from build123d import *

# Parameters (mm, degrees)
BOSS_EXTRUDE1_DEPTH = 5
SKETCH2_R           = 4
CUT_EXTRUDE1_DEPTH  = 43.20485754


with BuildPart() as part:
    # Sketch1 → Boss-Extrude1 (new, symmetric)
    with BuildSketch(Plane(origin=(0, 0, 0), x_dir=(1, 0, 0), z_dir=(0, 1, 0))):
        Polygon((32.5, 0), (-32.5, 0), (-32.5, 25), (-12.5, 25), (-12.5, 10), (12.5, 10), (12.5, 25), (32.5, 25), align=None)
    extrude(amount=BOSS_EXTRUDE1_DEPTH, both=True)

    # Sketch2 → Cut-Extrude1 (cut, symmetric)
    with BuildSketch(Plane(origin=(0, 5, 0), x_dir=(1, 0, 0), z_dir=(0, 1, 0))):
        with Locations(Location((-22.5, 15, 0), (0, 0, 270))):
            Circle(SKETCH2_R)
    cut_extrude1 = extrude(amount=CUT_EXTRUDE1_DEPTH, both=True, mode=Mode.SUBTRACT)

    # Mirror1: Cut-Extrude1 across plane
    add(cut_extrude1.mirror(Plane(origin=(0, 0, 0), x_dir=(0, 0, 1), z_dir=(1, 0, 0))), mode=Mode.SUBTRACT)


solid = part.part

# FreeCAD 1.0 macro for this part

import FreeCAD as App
import Part
import Sketcher
from FreeCAD import Vector

doc = App.newDocument("Part")
body = doc.addObject("PartDesign::Body", "Body")

sketch1 = body.newObject("Sketcher::SketchObject", "Sketch")
sketch1.AttachmentSupport = (doc.getObject("XZ_Plane"), [""])
sketch1.MapMode = "FlatFace"
sketch1.addGeometry(Part.LineSegment(Vector(-32, 0, 0), Vector(32, 0, 0)), False)
sketch1.addGeometry(Part.LineSegment(Vector(32, 0, 0), Vector(32, -25, 0)), False)
sketch1.addGeometry(Part.LineSegment(Vector(32, -25, 0), Vector(12, -25, 0)), False)
sketch1.addGeometry(Part.LineSegment(Vector(12, -25, 0), Vector(12, -10, 0)), False)
sketch1.addGeometry(Part.LineSegment(Vector(12, -10, 0), Vector(-12, -10, 0)), False)
sketch1.addGeometry(Part.LineSegment(Vector(-12, -10, 0), Vector(-12, -25, 0)), False)
sketch1.addGeometry(Part.LineSegment(Vector(-12, -25, 0), Vector(-32, -25, 0)), False)
sketch1.addGeometry(Part.LineSegment(Vector(-32, -25, 0), Vector(-32, 0, 0)), False)
sketch1.addConstraint(Sketcher.Constraint("Coincident", 0, 2, 1, 1))
sketch1.addConstraint(Sketcher.Constraint("Coincident", 1, 2, 2, 1))
sketch1.addConstraint(Sketcher.Constraint("Coincident", 2, 2, 3, 1))
sketch1.addConstraint(Sketcher.Constraint("Coincident", 3, 2, 4, 1))
sketch1.addConstraint(Sketcher.Constraint("Coincident", 4, 2, 5, 1))
sketch1.addConstraint(Sketcher.Constraint("Coincident", 5, 2, 6, 1))
sketch1.addConstraint(Sketcher.Constraint("Coincident", 6, 2, 7, 1))
sketch1.addConstraint(Sketcher.Constraint("Coincident", 7, 2, 0, 1))
sketch1.addConstraint(Sketcher.Constraint("Horizontal", 0))
sketch1.addConstraint(Sketcher.Constraint("Vertical", 1))
sketch1.addConstraint(Sketcher.Constraint("Horizontal", 2))
sketch1.addConstraint(Sketcher.Constraint("Vertical", 3))
sketch1.addConstraint(Sketcher.Constraint("Horizontal", 4))
sketch1.addConstraint(Sketcher.Constraint("Vertical", 5))
sketch1.addConstraint(Sketcher.Constraint("Horizontal", 6))
sketch1.addConstraint(Sketcher.Constraint("Vertical", 7))
sketch1.addConstraint(Sketcher.Constraint("Symmetric", 0, 2, 7, 2, -1, 1))
sketch1.addConstraint(Sketcher.Constraint("Symmetric", 2, 2, 5, 2, -2))
sketch1.addConstraint(Sketcher.Constraint("Equal", 4, 1))
sketch1.addConstraint(Sketcher.Constraint("DistanceX", 0, 1, 0, 2, 65.0))
sketch1.addConstraint(Sketcher.Constraint("DistanceX", 2, 2, 2, 1, 20.0))
sketch1.addConstraint(Sketcher.Constraint("DistanceY", 3, 1, 3, 2, 15.0))
pad1 = body.newObject("PartDesign::Pad", "Pad")
pad1.Profile = sketch1
pad1.Length = 10
pad1.Midplane = True

sketch2 = body.newObject("Sketcher::SketchObject", "Sketch001")
sketch2.AttachmentSupport = (doc.getObject("XZ_Plane"), [""])
sketch2.MapMode = "FlatFace"
sketch2.AttachmentOffset = App.Placement(Vector(0, 0, -5), App.Rotation())
sketch2.addGeometry(Part.Circle(Vector(-22.5, -15, 0), Vector(0, 0, 1), 4), False)
sketch2.addConstraint(Sketcher.Constraint("Diameter", 0, 8.0))
sketch2.addConstraint(Sketcher.Constraint("DistanceY", 0, 3, -1, 1, 15.0))
sketch2.addConstraint(Sketcher.Constraint("DistanceX", 0, 3, -1, 1, 22.5))
pocket1 = body.newObject("PartDesign::Pocket", "Pocket")
pocket1.Profile = sketch2
pocket1.Length = 86.409715
pocket1.Midplane = True
doc.recompute()

mirrored = body.newObject("PartDesign::Mirrored", "Mirrored")
mirrored.Originals = [pocket1]
mirrored.MirrorPlane = (doc.getObject("YZ_Plane"), [""])
body.Tip = mirrored

doc.recompute()
